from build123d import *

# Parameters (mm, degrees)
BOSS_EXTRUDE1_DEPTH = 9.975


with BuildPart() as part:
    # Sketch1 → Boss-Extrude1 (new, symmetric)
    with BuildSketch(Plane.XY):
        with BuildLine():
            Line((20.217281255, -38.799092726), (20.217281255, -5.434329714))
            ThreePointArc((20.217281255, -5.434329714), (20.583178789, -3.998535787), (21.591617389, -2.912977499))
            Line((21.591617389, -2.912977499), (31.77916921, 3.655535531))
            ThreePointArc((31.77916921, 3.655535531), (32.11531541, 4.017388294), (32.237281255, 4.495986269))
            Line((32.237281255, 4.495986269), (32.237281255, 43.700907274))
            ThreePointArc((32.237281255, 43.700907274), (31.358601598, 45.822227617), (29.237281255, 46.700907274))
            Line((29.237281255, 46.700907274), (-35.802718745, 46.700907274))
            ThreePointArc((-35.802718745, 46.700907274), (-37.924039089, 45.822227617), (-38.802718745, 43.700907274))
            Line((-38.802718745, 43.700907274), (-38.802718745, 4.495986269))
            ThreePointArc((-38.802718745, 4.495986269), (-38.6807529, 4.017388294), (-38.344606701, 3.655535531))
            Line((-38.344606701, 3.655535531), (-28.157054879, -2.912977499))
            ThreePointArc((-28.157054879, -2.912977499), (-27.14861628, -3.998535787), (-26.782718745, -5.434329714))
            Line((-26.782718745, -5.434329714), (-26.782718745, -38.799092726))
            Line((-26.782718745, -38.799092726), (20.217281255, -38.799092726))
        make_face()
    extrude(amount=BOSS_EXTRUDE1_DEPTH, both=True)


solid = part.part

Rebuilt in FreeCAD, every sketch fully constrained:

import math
import FreeCAD as App
import Part
import Sketcher
from FreeCAD import Vector

doc = App.newDocument("Part")
params = doc.addObject("Spreadsheet::Sheet", "Params")
for row, (alias, value) in enumerate([
    ("sketch1_radius", "3 mm"),
    ("sketch1_radius2", "1 mm"),
    ("sketch1_width", "47 mm"),
    ("sketch1_width2", "65.04 mm"),
    ("pad1_length", "19.95 mm"),
], start=1):
    params.set(f"A{row}", alias)
    params.set(f"B{row}", "=" + value)
    params.setAlias(f"B{row}", alias)

body = doc.addObject("PartDesign::Body", "Body")

# Sketch on XY plane
sketch1 = doc.addObject("Sketcher::SketchObject", "Sketch")
body.addObject(sketch1)
sketch1.AttachmentSupport = (doc.XY_Plane, [""])
sketch1.MapMode = "FlatFace"
sketch1.addGeometry(Part.LineSegment(Vector(20.217281, -38.799093, 0), Vector(20.217281, -5.43433, 0)), False)
sketch1.addGeometry(Part.ArcOfCircle(Part.Circle(Vector(23.217281, -5.43433, 0), Vector(0, 0, 1), 3), math.radians(122.812253), math.radians(180)), False)
sketch1.addGeometry(Part.LineSegment(Vector(21.591617, -2.912977, 0), Vector(31.779169, 3.655536, 0)), False)
sketch1.addGeometry(Part.ArcOfCircle(Part.Circle(Vector(31.237281, 4.495986, 0), Vector(0, 0, 1), 1), math.radians(-57.187747), math.radians(0)), False)
sketch1.addGeometry(Part.LineSegment(Vector(32.237281, 4.495986, 0), Vector(32.237281, 43.700907, 0)), False)
sketch1.addGeometry(Part.ArcOfCircle(Part.Circle(Vector(29.237281, 43.700907, 0), Vector(0, 0, 1), 3), math.radians(0), math.radians(90)), False)
sketch1.addGeometry(Part.LineSegment(Vector(29.237281, 46.700907, 0), Vector(-35.802719, 46.700907, 0)), False)
sketch1.addGeometry(Part.ArcOfCircle(Part.Circle(Vector(-35.802719, 43.700907, 0), Vector(0, 0, 1), 3), math.radians(90), math.radians(180)), False)
sketch1.addGeometry(Part.LineSegment(Vector(-38.802719, 43.700907, 0), Vector(-38.802719, 4.495986, 0)), False)
sketch1.addGeometry(Part.ArcOfCircle(Part.Circle(Vector(-37.802719, 4.495986, 0), Vector(0, 0, 1), 1), math.radians(-180), math.radians(-122.812253)), False)
sketch1.addGeometry(Part.LineSegment(Vector(-38.344607, 3.655536, 0), Vector(-28.157055, -2.912977, 0)), False)
sketch1.addGeometry(Part.ArcOfCircle(Part.Circle(Vector(-29.782719, -5.43433, 0), Vector(0, 0, 1), 3), math.radians(0), math.radians(57.187747)), False)
sketch1.addGeometry(Part.LineSegment(Vector(-26.782719, -5.43433, 0), Vector(-26.782719, -38.799093, 0)), False)
sketch1.addGeometry(Part.LineSegment(Vector(-26.782719, -38.799093, 0), Vector(20.217281, -38.799093, 0)), False)
sketch1.addConstraint(Sketcher.Constraint("Tangent", 0, 2, 1, 2))
sketch1.addConstraint(Sketcher.Constraint("Tangent", 1, 1, 2, 1))
sketch1.addConstraint(Sketcher.Constraint("Tangent", 2, 2, 3, 1))
sketch1.addConstraint(Sketcher.Constraint("Tangent", 3, 2, 4, 1))
sketch1.addConstraint(Sketcher.Constraint("Tangent", 4, 2, 5, 1))
sketch1.addConstraint(Sketcher.Constraint("Tangent", 5, 2, 6, 1))
sketch1.addConstraint(Sketcher.Constraint("Tangent", 6, 2, 7, 1))
sketch1.addConstraint(Sketcher.Constraint("Tangent", 7, 2, 8, 1))
sketch1.addConstraint(Sketcher.Constraint("Tangent", 8, 2, 9, 1))
sketch1.addConstraint(Sketcher.Constraint("Tangent", 9, 2, 10, 1))
sketch1.addConstraint(Sketcher.Constraint("Tangent", 10, 2, 11, 2))
sketch1.addConstraint(Sketcher.Constraint("Tangent", 11, 1, 12, 1))
sketch1.addConstraint(Sketcher.Constraint("Coincident", 12, 2, 13, 1))
sketch1.addConstraint(Sketcher.Constraint("Coincident", 13, 2, 0, 1))
sketch1.addConstraint(Sketcher.Constraint("Vertical", 0))
sketch1.addConstraint(Sketcher.Constraint("Vertical", 4))
sketch1.addConstraint(Sketcher.Constraint("Horizontal", 6))
sketch1.addConstraint(Sketcher.Constraint("Vertical", 8))
sketch1.addConstraint(Sketcher.Constraint("Vertical", 12))
sketch1.addConstraint(Sketcher.Constraint("Horizontal", 13))
sketch1.addConstraint(Sketcher.Constraint("Equal", 1, 5))
sketch1.addConstraint(Sketcher.Constraint("Equal", 5, 7))
sketch1.addConstraint(Sketcher.Constraint("Equal", 3, 9))
sketch1.addConstraint(Sketcher.Constraint("Equal", 7, 11))
sketch1.addConstraint(Sketcher.Constraint("Horizontal", 3, 3, 9, 3))
sketch1.addConstraint(Sketcher.Constraint("Horizontal", 1, 3, 11, 3))
sketch1.addConstraint(Sketcher.Constraint("Horizontal", 2, 2, 9, 2))
sketch1.addConstraint(Sketcher.Constraint("Radius", 1, 3.0))
sketch1.addConstraint(Sketcher.Constraint("Radius", 3, 1.0))
sketch1.addConstraint(Sketcher.Constraint("DistanceX", 13, 1, 13, 2, 47.0))
sketch1.addConstraint(Sketcher.Constraint("DistanceX", 6, 2, 6, 1, 65.04))
sketch1.addConstraint(Sketcher.Constraint("DistanceY", 4, 1, 4, 2, 39.204921))
sketch1.addConstraint(Sketcher.Constraint("DistanceY", 0, 1, 0, 2, 33.364763))
sketch1.addConstraint(Sketcher.Constraint("DistanceX", -1, 1, 1, 3, 23.217281))
sketch1.addConstraint(Sketcher.Constraint("DistanceY", 1, 3, -1, 1, 5.43433))
sketch1.addConstraint(Sketcher.Constraint("DistanceX", -1, 1, 2, 2, 31.779169))
sketch1.setExpression("Constraints[27]", "Params.sketch1_radius")
sketch1.setExpression("Constraints[28]", "Params.sketch1_radius2")
sketch1.setExpression("Constraints[29]", "Params.sketch1_width")
sketch1.setExpression("Constraints[30]", "Params.sketch1_width2")
pad1 = doc.addObject("PartDesign::Pad", "Pad")
body.addObject(pad1)
pad1.Profile = sketch1
pad1.setExpression("Length", "Params.pad1_length")
pad1.Midplane = True

doc.recompute()
